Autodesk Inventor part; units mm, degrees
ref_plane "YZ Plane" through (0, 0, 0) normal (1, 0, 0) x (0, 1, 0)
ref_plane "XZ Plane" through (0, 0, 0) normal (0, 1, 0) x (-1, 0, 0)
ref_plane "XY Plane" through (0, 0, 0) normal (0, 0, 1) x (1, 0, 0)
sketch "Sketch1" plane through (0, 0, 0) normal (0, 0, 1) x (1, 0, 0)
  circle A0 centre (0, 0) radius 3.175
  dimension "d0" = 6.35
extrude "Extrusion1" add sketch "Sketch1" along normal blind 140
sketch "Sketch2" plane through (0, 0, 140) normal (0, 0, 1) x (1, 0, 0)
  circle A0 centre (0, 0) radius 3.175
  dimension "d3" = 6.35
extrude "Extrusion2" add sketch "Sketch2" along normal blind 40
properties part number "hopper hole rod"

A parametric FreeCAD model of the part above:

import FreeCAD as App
import Part
import Sketcher
from FreeCAD import Vector
Q = App.Units.Quantity

doc = App.newDocument("Part")
body = doc.addObject("PartDesign::Body", "Body")

sketch1 = doc.addObject("Sketcher::SketchObject", "Sketch")
body.addObject(sketch1)
sketch1.AttachmentSupport = (doc.XY_Plane, [""])
sketch1.MapMode = "FlatFace"
sketch1.addGeometry(Part.Circle(Vector(0, 0, 0), Vector(0, 0, 1), 3.2), False)
sketch1.addConstraint(Sketcher.Constraint("Coincident", 0, 3, -1, 1))
sketch1.addConstraint(Sketcher.Constraint("Diameter", 0, Q("0.25 in")))
pad1 = doc.addObject("PartDesign::Pad", "Pad")
body.addObject(pad1)
pad1.Profile = sketch1
pad1.Length = Q("5.511811 in")

sketch2 = doc.addObject("Sketcher::SketchObject", "Sketch001")
body.addObject(sketch2)
sketch2.AttachmentSupport = (doc.XY_Plane, [""])
sketch2.MapMode = "FlatFace"
sketch2.AttachmentOffset = App.Placement(Vector(0, 0, 5.511811 * 25.4), App.Rotation())
sketch2.addGeometry(Part.Circle(Vector(0, 0, 0), Vector(0, 0, 1), 3.2), False)
sketch2.addConstraint(Sketcher.Constraint("Coincident", 0, 3, -1, 1))
sketch2.addConstraint(Sketcher.Constraint("Diameter", 0, Q("0.25 in")))
pad2 = doc.addObject("PartDesign::Pad", "Pad001")
body.addObject(pad2)
pad2.Profile = sketch2
pad2.Length = Q("1.5748031 in")

doc.recompute()
